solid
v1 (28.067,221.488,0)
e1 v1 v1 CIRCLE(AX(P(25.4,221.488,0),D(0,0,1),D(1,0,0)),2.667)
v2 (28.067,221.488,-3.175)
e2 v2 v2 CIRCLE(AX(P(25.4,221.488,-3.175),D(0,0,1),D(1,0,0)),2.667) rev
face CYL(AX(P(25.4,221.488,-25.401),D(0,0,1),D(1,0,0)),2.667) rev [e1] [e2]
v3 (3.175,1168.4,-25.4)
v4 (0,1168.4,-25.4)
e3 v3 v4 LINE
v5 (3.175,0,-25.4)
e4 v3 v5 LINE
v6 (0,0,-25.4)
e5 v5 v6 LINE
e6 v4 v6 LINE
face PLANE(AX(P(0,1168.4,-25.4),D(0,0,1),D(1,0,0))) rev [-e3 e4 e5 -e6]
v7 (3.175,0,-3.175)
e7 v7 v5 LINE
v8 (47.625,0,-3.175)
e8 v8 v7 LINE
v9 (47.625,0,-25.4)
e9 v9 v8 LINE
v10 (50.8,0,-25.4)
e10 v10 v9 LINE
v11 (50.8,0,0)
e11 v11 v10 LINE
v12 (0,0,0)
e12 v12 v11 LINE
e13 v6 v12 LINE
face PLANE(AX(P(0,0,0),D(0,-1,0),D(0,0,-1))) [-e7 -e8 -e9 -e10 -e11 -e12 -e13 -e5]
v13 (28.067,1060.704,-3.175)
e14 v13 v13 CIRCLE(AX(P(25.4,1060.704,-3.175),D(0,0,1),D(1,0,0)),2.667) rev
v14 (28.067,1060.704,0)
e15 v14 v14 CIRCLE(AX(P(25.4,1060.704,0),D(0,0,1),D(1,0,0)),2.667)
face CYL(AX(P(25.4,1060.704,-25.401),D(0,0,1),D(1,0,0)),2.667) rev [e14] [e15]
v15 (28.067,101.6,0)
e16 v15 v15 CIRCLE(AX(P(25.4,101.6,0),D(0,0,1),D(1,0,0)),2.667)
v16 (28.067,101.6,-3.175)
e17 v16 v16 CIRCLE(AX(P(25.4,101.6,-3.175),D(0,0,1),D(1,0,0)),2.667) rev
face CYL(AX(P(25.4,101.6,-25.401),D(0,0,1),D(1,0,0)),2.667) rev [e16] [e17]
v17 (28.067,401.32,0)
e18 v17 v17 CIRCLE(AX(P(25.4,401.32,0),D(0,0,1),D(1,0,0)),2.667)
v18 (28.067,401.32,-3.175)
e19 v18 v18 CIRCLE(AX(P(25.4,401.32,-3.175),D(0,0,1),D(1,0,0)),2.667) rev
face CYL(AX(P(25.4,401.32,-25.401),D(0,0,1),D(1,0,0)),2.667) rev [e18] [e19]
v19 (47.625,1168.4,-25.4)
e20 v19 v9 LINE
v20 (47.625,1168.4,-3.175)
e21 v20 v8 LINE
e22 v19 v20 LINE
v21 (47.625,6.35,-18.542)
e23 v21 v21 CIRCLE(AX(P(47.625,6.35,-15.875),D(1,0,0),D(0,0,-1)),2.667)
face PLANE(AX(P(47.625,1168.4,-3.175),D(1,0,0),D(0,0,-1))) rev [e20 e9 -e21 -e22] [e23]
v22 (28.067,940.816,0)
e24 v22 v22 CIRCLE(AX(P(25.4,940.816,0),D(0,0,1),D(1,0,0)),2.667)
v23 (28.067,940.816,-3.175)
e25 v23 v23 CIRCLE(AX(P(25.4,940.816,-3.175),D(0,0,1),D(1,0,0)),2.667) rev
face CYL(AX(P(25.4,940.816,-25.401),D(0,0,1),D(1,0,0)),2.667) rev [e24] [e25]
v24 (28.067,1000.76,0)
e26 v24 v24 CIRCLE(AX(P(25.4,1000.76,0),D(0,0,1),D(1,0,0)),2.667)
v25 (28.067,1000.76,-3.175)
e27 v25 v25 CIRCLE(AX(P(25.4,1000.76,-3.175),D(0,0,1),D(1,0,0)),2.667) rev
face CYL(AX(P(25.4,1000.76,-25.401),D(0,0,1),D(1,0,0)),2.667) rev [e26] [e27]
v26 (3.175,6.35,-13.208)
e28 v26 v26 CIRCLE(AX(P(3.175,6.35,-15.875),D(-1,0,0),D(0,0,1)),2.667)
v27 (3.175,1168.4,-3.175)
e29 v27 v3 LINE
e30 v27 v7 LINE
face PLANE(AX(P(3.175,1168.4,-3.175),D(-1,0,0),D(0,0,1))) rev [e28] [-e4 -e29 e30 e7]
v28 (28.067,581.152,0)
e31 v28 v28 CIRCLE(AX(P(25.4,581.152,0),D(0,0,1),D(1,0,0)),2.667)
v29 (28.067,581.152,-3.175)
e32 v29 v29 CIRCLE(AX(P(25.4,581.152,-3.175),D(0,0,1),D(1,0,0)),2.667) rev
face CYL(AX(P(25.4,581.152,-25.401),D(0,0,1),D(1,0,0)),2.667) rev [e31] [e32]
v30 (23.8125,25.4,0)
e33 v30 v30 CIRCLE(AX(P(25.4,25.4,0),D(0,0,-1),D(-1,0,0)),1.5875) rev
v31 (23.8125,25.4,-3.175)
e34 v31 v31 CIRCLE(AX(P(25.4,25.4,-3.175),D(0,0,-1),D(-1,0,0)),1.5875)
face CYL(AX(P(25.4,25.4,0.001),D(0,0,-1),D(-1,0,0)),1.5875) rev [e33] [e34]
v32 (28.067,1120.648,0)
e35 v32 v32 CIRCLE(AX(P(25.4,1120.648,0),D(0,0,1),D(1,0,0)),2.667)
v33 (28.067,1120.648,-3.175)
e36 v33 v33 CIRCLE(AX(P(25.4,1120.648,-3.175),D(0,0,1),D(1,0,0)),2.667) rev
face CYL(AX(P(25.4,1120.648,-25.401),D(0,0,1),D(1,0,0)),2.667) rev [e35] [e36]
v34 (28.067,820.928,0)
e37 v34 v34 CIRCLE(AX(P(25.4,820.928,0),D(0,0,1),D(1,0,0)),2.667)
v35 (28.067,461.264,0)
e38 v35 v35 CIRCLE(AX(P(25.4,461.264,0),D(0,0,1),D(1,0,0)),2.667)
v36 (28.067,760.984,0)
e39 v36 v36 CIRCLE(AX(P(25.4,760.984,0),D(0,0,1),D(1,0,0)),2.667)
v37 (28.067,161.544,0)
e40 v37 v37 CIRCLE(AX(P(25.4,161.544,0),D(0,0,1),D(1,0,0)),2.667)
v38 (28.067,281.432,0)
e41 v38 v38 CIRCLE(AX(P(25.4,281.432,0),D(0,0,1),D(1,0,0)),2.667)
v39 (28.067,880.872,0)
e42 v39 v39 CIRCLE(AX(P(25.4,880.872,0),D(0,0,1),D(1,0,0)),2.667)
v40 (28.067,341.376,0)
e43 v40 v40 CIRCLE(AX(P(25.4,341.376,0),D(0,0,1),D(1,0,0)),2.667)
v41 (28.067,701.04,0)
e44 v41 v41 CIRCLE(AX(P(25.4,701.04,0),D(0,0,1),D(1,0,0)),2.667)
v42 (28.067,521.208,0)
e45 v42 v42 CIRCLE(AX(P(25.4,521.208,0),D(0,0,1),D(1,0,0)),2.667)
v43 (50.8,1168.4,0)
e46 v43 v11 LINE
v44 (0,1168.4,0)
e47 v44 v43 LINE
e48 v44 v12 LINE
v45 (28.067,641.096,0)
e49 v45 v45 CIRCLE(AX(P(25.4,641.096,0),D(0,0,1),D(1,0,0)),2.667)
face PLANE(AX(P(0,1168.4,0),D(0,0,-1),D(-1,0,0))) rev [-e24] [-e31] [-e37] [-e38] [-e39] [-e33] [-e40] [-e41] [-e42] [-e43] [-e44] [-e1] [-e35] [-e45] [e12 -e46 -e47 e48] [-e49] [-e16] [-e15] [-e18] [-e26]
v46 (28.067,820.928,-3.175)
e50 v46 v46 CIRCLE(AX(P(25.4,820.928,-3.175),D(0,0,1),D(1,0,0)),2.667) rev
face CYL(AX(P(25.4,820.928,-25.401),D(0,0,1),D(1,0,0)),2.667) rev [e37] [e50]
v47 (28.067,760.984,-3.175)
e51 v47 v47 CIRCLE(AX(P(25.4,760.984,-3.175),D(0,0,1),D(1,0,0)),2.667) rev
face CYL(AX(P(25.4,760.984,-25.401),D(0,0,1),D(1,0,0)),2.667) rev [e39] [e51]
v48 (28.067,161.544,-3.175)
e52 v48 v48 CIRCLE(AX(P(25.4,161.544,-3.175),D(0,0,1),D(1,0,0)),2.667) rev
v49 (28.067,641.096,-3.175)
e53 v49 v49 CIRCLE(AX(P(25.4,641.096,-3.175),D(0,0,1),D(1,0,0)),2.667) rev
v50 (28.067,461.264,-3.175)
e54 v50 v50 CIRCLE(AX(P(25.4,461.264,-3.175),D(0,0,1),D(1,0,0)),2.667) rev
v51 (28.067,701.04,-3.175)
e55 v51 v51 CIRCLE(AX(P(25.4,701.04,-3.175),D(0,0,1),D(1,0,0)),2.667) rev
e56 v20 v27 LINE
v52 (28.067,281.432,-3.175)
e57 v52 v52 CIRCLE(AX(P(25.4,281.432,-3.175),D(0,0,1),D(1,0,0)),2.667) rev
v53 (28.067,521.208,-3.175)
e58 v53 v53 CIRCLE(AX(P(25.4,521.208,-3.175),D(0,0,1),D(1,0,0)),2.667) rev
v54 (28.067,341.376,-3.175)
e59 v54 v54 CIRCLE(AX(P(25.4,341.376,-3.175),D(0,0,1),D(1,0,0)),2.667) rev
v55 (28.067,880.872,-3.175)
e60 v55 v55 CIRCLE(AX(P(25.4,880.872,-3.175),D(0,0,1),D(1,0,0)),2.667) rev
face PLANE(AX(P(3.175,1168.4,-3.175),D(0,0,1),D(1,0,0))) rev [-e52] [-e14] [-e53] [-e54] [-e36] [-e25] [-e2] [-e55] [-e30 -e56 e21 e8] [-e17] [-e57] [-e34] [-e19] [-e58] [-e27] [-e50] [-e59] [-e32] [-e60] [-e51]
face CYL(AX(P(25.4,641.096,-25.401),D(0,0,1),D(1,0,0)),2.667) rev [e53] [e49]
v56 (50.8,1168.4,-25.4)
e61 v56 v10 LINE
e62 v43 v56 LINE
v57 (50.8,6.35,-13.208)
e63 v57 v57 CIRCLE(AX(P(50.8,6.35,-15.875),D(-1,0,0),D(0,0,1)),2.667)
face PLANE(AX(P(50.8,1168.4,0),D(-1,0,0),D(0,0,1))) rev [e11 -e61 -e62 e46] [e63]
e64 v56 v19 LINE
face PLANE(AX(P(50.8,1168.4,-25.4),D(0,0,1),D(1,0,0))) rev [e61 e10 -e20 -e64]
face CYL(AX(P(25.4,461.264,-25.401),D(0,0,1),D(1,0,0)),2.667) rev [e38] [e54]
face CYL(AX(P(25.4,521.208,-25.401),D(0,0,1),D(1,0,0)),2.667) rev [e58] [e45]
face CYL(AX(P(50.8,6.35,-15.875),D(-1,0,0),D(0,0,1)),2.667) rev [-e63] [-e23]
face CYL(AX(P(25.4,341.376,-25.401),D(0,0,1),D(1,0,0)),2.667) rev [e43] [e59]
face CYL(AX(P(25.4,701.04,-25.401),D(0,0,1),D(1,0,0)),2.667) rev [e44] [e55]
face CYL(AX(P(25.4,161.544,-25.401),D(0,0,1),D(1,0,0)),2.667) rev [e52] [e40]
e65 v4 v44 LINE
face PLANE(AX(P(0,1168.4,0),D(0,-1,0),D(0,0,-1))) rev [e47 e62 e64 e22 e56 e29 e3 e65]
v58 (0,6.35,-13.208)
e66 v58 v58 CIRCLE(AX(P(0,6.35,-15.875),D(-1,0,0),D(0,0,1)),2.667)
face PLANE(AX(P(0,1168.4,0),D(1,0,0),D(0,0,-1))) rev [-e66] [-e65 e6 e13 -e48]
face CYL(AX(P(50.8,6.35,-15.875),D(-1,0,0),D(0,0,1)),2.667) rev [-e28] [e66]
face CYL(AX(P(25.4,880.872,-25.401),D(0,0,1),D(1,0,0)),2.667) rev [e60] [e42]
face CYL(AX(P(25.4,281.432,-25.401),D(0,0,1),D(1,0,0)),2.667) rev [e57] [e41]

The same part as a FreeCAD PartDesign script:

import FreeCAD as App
import Part
import Sketcher

V = App.Vector
Q = App.Units.Quantity


def add_polygon(sketch, points):
    """Adds a closed chain of lines whose ends are joined by coincident constraints."""
    first, n = sketch.GeometryCount, len(points)
    for a, b in zip(points, points[1:] + points[:1]):
        sketch.addGeometry(Part.LineSegment(App.Vector(*a, 0), App.Vector(*b, 0)), False)
    for i in range(n):
        sketch.addConstraint(Sketcher.Constraint("Coincident", first + i, 2, first + (i + 1) % n, 1))

doc = App.newDocument("Part")
body = doc.addObject("PartDesign::Body", "Body")

# Sketch on XZ plane
sketch1 = doc.addObject("Sketcher::SketchObject", "Sketch")
body.addObject(sketch1)
sketch1.AttachmentSupport = (doc.XZ_Plane, [""])
sketch1.MapMode = "FlatFace"
add_polygon(sketch1, [(3.175, -3.175), (3.175, -25.4), (0, -25.4), (0, 0), (50.8, 0), (50.8, -25.4), (47.625, -25.4), (47.625, -3.175)])  # lines 0-7
sketch1.addConstraint([
    Sketcher.Constraint("Vertical", 0),
    Sketcher.Constraint("Horizontal", 1),
    Sketcher.Constraint("Vertical", 2),
    Sketcher.Constraint("Horizontal", 3),
    Sketcher.Constraint("Vertical", 4),
    Sketcher.Constraint("Horizontal", 5),
    Sketcher.Constraint("Vertical", 6),
    Sketcher.Constraint("Horizontal", 7),
    Sketcher.Constraint("Coincident", 2, 2, -1, 1),
    Sketcher.Constraint("Horizontal", 1, 2, 4, 2),
    Sketcher.Constraint("Equal", 1, 5),
    Sketcher.Constraint("DistanceX", 3, 1, 3, 2, Q("2 in")),
    Sketcher.Constraint("DistanceY", 2, 1, 2, 2, Q("1 in")),
    Sketcher.Constraint("DistanceX", 7, 2, 7, 1, Q("1.75 in")),
    Sketcher.Constraint("DistanceY", 0, 2, 0, 1, Q("0.875 in")),
])
pad1 = doc.addObject("PartDesign::Pad", "Pad")
body.addObject(pad1)
pad1.Profile = sketch1
pad1.Length = Q("46 in")
pad1.Reversed = True

# Sketch on XY plane
sketch2 = doc.addObject("Sketcher::SketchObject", "Sketch001")
body.addObject(sketch2)
sketch2.AttachmentSupport = (doc.XY_Plane, [""])
sketch2.MapMode = "FlatFace"
sketch2.addGeometry(Part.Circle(V(25.4, 101.6, 0), V(0, 0, 1), 2.667), False)
sketch2.addConstraint([
    Sketcher.Constraint("Diameter", 0, Q("0.21 in")),
    Sketcher.Constraint("DistanceX", -1, 1, 0, 3, Q("1 in")),
    Sketcher.Constraint("DistanceY", -1, 1, 0, 3, Q("4 in")),
])
pocket1 = doc.addObject("PartDesign::Pocket", "Pocket")
body.addObject(pocket1)
pocket1.Profile = sketch2
pocket1.Type = "UpToFirst"

# Sketch on XY plane
sketch3 = doc.addObject("Sketcher::SketchObject", "Sketch002")
body.addObject(sketch3)
sketch3.AttachmentSupport = (doc.XY_Plane, [""])
sketch3.MapMode = "FlatFace"
sketch3.addGeometry(Part.Circle(V(25.4, 161.544, 0), V(0, 0, 1), 2.667), False)
sketch3.addConstraint([
    Sketcher.Constraint("Diameter", 0, Q("0.21 in")),
    Sketcher.Constraint("DistanceX", -1, 1, 0, 3, Q("1 in")),
    Sketcher.Constraint("DistanceY", -1, 1, 0, 3, Q("6.36 in")),
])
pocket2 = doc.addObject("PartDesign::Pocket", "Pocket001")
body.addObject(pocket2)
pocket2.Profile = sketch3
pocket2.Type = "UpToFirst"

# Sketch on XY plane
sketch4 = doc.addObject("Sketcher::SketchObject", "Sketch003")
body.addObject(sketch4)
sketch4.AttachmentSupport = (doc.XY_Plane, [""])
sketch4.MapMode = "FlatFace"
sketch4.addGeometry(Part.Circle(V(25.4, 221.488, 0), V(0, 0, 1), 2.667), False)
sketch4.addConstraint([
    Sketcher.Constraint("Diameter", 0, Q("0.21 in")),
    Sketcher.Constraint("DistanceX", -1, 1, 0, 3, Q("1 in")),
    Sketcher.Constraint("DistanceY", -1, 1, 0, 3, Q("8.72 in")),
])
pocket3 = doc.addObject("PartDesign::Pocket", "Pocket002")
body.addObject(pocket3)
pocket3.Profile = sketch4
pocket3.Type = "UpToFirst"

# Sketch on XY plane
sketch5 = doc.addObject("Sketcher::SketchObject", "Sketch004")
body.addObject(sketch5)
sketch5.AttachmentSupport = (doc.XY_Plane, [""])
sketch5.MapMode = "FlatFace"
sketch5.addGeometry(Part.Circle(V(25.4, 281.432, 0), V(0, 0, 1), 2.667), False)
sketch5.addConstraint([
    Sketcher.Constraint("Diameter", 0, Q("0.21 in")),
    Sketcher.Constraint("DistanceX", -1, 1, 0, 3, Q("1 in")),
    Sketcher.Constraint("DistanceY", -1, 1, 0, 3, Q("11.08 in")),
])
pocket4 = doc.addObject("PartDesign::Pocket", "Pocket003")
body.addObject(pocket4)
pocket4.Profile = sketch5
pocket4.Type = "UpToFirst"

# Sketch on XY plane
sketch6 = doc.addObject("Sketcher::SketchObject", "Sketch005")
body.addObject(sketch6)
sketch6.AttachmentSupport = (doc.XY_Plane, [""])
sketch6.MapMode = "FlatFace"
sketch6.addGeometry(Part.Circle(V(25.4, 341.376, 0), V(0, 0, 1), 2.667), False)
sketch6.addConstraint([
    Sketcher.Constraint("Diameter", 0, Q("0.21 in")),
    Sketcher.Constraint("DistanceX", -1, 1, 0, 3, Q("1 in")),
    Sketcher.Constraint("DistanceY", -1, 1, 0, 3, Q("13.44 in")),
])
pocket5 = doc.addObject("PartDesign::Pocket", "Pocket004")
body.addObject(pocket5)
pocket5.Profile = sketch6
pocket5.Type = "UpToFirst"

# Sketch on XY plane
sketch7 = doc.addObject("Sketcher::SketchObject", "Sketch006")
body.addObject(sketch7)
sketch7.AttachmentSupport = (doc.XY_Plane, [""])
sketch7.MapMode = "FlatFace"
sketch7.addGeometry(Part.Circle(V(25.4, 401.32, 0), V(0, 0, 1), 2.667), False)
sketch7.addConstraint([
    Sketcher.Constraint("Diameter", 0, Q("0.21 in")),
    Sketcher.Constraint("DistanceX", -1, 1, 0, 3, Q("1 in")),
    Sketcher.Constraint("DistanceY", -1, 1, 0, 3, Q("15.8 in")),
])
pocket6 = doc.addObject("PartDesign::Pocket", "Pocket005")
body.addObject(pocket6)
pocket6.Profile = sketch7
pocket6.Type = "UpToFirst"

# Sketch on XY plane
sketch8 = doc.addObject("Sketcher::SketchObject", "Sketch007")
body.addObject(sketch8)
sketch8.AttachmentSupport = (doc.XY_Plane, [""])
sketch8.MapMode = "FlatFace"
sketch8.addGeometry(Part.Circle(V(25.4, 461.264, 0), V(0, 0, 1), 2.667), False)
sketch8.addConstraint([
    Sketcher.Constraint("Diameter", 0, Q("0.21 in")),
    Sketcher.Constraint("DistanceX", -1, 1, 0, 3, Q("1 in")),
    Sketcher.Constraint("DistanceY", -1, 1, 0, 3, Q("18.16 in")),
])
pocket7 = doc.addObject("PartDesign::Pocket", "Pocket006")
body.addObject(pocket7)
pocket7.Profile = sketch8
pocket7.Type = "UpToFirst"

# Sketch on XY plane
sketch9 = doc.addObject("Sketcher::SketchObject", "Sketch008")
body.addObject(sketch9)
sketch9.AttachmentSupport = (doc.XY_Plane, [""])
sketch9.MapMode = "FlatFace"
sketch9.addGeometry(Part.Circle(V(25.4, 521.208, 0), V(0, 0, 1), 2.667), False)
sketch9.addConstraint([
    Sketcher.Constraint("Diameter", 0, Q("0.21 in")),
    Sketcher.Constraint("DistanceX", -1, 1, 0, 3, Q("1 in")),
    Sketcher.Constraint("DistanceY", -1, 1, 0, 3, Q("20.52 in")),
])
pocket8 = doc.addObject("PartDesign::Pocket", "Pocket007")
body.addObject(pocket8)
pocket8.Profile = sketch9
pocket8.Type = "UpToFirst"

# Sketch on XY plane
sketch10 = doc.addObject("Sketcher::SketchObject", "Sketch009")
body.addObject(sketch10)
sketch10.AttachmentSupport = (doc.XY_Plane, [""])
sketch10.MapMode = "FlatFace"
sketch10.addGeometry(Part.Circle(V(25.4, 581.152, 0), V(0, 0, 1), 2.667), False)
sketch10.addConstraint([
    Sketcher.Constraint("Diameter", 0, Q("0.21 in")),
    Sketcher.Constraint("DistanceX", -1, 1, 0, 3, Q("1 in")),
    Sketcher.Constraint("DistanceY", -1, 1, 0, 3, Q("22.88 in")),
])
pocket9 = doc.addObject("PartDesign::Pocket", "Pocket008")
body.addObject(pocket9)
pocket9.Profile = sketch10
pocket9.Type = "UpToFirst"

# Sketch on XY plane
sketch11 = doc.addObject("Sketcher::SketchObject", "Sketch010")
body.addObject(sketch11)
sketch11.AttachmentSupport = (doc.XY_Plane, [""])
sketch11.MapMode = "FlatFace"
sketch11.addGeometry(Part.Circle(V(25.4, 641.096, 0), V(0, 0, 1), 2.667), False)
sketch11.addConstraint([
    Sketcher.Constraint("Diameter", 0, Q("0.21 in")),
    Sketcher.Constraint("DistanceX", -1, 1, 0, 3, Q("1 in")),
    Sketcher.Constraint("DistanceY", -1, 1, 0, 3, Q("25.24 in")),
])
pocket10 = doc.addObject("PartDesign::Pocket", "Pocket009")
body.addObject(pocket10)
pocket10.Profile = sketch11
pocket10.Type = "UpToFirst"

# Sketch on XY plane
sketch12 = doc.addObject("Sketcher::SketchObject", "Sketch011")
body.addObject(sketch12)
sketch12.AttachmentSupport = (doc.XY_Plane, [""])
sketch12.MapMode = "FlatFace"
sketch12.addGeometry(Part.Circle(V(25.4, 701.04, 0), V(0, 0, 1), 2.667), False)
sketch12.addConstraint([
    Sketcher.Constraint("Diameter", 0, Q("0.21 in")),
    Sketcher.Constraint("DistanceX", -1, 1, 0, 3, Q("1 in")),
    Sketcher.Constraint("DistanceY", -1, 1, 0, 3, Q("27.6 in")),
])
pocket11 = doc.addObject("PartDesign::Pocket", "Pocket010")
body.addObject(pocket11)
pocket11.Profile = sketch12
pocket11.Type = "UpToFirst"

# Sketch on XY plane
sketch13 = doc.addObject("Sketcher::SketchObject", "Sketch012")
body.addObject(sketch13)
sketch13.AttachmentSupport = (doc.XY_Plane, [""])
sketch13.MapMode = "FlatFace"
sketch13.addGeometry(Part.Circle(V(25.4, 760.984, 0), V(0, 0, 1), 2.667), False)
sketch13.addConstraint([
    Sketcher.Constraint("Diameter", 0, Q("0.21 in")),
    Sketcher.Constraint("DistanceX", -1, 1, 0, 3, Q("1 in")),
    Sketcher.Constraint("DistanceY", -1, 1, 0, 3, Q("29.96 in")),
])
pocket12 = doc.addObject("PartDesign::Pocket", "Pocket011")
body.addObject(pocket12)
pocket12.Profile = sketch13
pocket12.Type = "UpToFirst"

# Sketch on XY plane
sketch14 = doc.addObject("Sketcher::SketchObject", "Sketch013")
body.addObject(sketch14)
sketch14.AttachmentSupport = (doc.XY_Plane, [""])
sketch14.MapMode = "FlatFace"
sketch14.addGeometry(Part.Circle(V(25.4, 820.928, 0), V(0, 0, 1), 2.667), False)
sketch14.addConstraint([
    Sketcher.Constraint("Diameter", 0, Q("0.21 in")),
    Sketcher.Constraint("DistanceX", -1, 1, 0, 3, Q("1 in")),
    Sketcher.Constraint("DistanceY", -1, 1, 0, 3, Q("32.32 in")),
])
pocket13 = doc.addObject("PartDesign::Pocket", "Pocket012")
body.addObject(pocket13)
pocket13.Profile = sketch14
pocket13.Type = "UpToFirst"

# Sketch on XY plane
sketch15 = doc.addObject("Sketcher::SketchObject", "Sketch014")
body.addObject(sketch15)
sketch15.AttachmentSupport = (doc.XY_Plane, [""])
sketch15.MapMode = "FlatFace"
sketch15.addGeometry(Part.Circle(V(25.4, 880.872, 0), V(0, 0, 1), 2.667), False)
sketch15.addConstraint([
    Sketcher.Constraint("Diameter", 0, Q("0.21 in")),
    Sketcher.Constraint("DistanceX", -1, 1, 0, 3, Q("1 in")),
    Sketcher.Constraint("DistanceY", -1, 1, 0, 3, Q("34.68 in")),
])
pocket14 = doc.addObject("PartDesign::Pocket", "Pocket013")
body.addObject(pocket14)
pocket14.Profile = sketch15
pocket14.Type = "UpToFirst"

# Sketch on XY plane
sketch16 = doc.addObject("Sketcher::SketchObject", "Sketch015")
body.addObject(sketch16)
sketch16.AttachmentSupport = (doc.XY_Plane, [""])
sketch16.MapMode = "FlatFace"
sketch16.addGeometry(Part.Circle(V(25.4, 940.816, 0), V(0, 0, 1), 2.667), False)
sketch16.addConstraint([
    Sketcher.Constraint("Diameter", 0, Q("0.21 in")),
    Sketcher.Constraint("DistanceX", -1, 1, 0, 3, Q("1 in")),
    Sketcher.Constraint("DistanceY", -1, 1, 0, 3, Q("37.04 in")),
])
pocket15 = doc.addObject("PartDesign::Pocket", "Pocket014")
body.addObject(pocket15)
pocket15.Profile = sketch16
pocket15.Type = "UpToFirst"

# Sketch on XY plane
sketch17 = doc.addObject("Sketcher::SketchObject", "Sketch016")
body.addObject(sketch17)
sketch17.AttachmentSupport = (doc.XY_Plane, [""])
sketch17.MapMode = "FlatFace"
sketch17.addGeometry(Part.Circle(V(25.4, 1000.76, 0), V(0, 0, 1), 2.667), False)
sketch17.addConstraint([
    Sketcher.Constraint("Diameter", 0, Q("0.21 in")),
    Sketcher.Constraint("DistanceX", -1, 1, 0, 3, Q("1 in")),
    Sketcher.Constraint("DistanceY", -1, 1, 0, 3, Q("39.4 in")),
])
pocket16 = doc.addObject("PartDesign::Pocket", "Pocket015")
body.addObject(pocket16)
pocket16.Profile = sketch17
pocket16.Type = "UpToFirst"

# Sketch on XY plane
sketch18 = doc.addObject("Sketcher::SketchObject", "Sketch017")
body.addObject(sketch18)
sketch18.AttachmentSupport = (doc.XY_Plane, [""])
sketch18.MapMode = "FlatFace"
sketch18.addGeometry(Part.Circle(V(25.4, 1060.704, 0), V(0, 0, 1), 2.667), False)
sketch18.addConstraint([
    Sketcher.Constraint("Diameter", 0, Q("0.21 in")),
    Sketcher.Constraint("DistanceX", -1, 1, 0, 3, Q("1 in")),
    Sketcher.Constraint("DistanceY", -1, 1, 0, 3, Q("41.76 in")),
])
pocket17 = doc.addObject("PartDesign::Pocket", "Pocket016")
body.addObject(pocket17)
pocket17.Profile = sketch18
pocket17.Type = "UpToFirst"

# Sketch on XY plane
sketch19 = doc.addObject("Sketcher::SketchObject", "Sketch018")
body.addObject(sketch19)
sketch19.AttachmentSupport = (doc.XY_Plane, [""])
sketch19.MapMode = "FlatFace"
sketch19.addGeometry(Part.Circle(V(25.4, 1120.648, 0), V(0, 0, 1), 2.667), False)
sketch19.addConstraint([
    Sketcher.Constraint("Diameter", 0, Q("0.21 in")),
    Sketcher.Constraint("DistanceX", -1, 1, 0, 3, Q("1 in")),
    Sketcher.Constraint("DistanceY", -1, 1, 0, 3, Q("44.12 in")),
])
pocket18 = doc.addObject("PartDesign::Pocket", "Pocket017")
body.addObject(pocket18)
pocket18.Profile = sketch19
pocket18.Type = "UpToFirst"

# Sketch on XY plane
sketch20 = doc.addObject("Sketcher::SketchObject", "Sketch019")
body.addObject(sketch20)
sketch20.AttachmentSupport = (doc.XY_Plane, [""])
sketch20.MapMode = "FlatFace"
sketch20.AttachmentOffset = App.Placement(V(0, 0, -0.125 * 25.4), App.Rotation())
sketch20.addGeometry(Part.Circle(V(25.4, 25.4, 0), V(0, 0, 1), 1.5875), False)
sketch20.addConstraint([
    Sketcher.Constraint("Diameter", 0, Q("0.125 in")),
    Sketcher.Constraint("DistanceX", -1, 1, 0, 3, Q("1 in")),
    Sketcher.Constraint("DistanceY", -1, 1, 0, 3, Q("1 in")),
])
pocket19 = doc.addObject("PartDesign::Pocket", "Pocket018")
body.addObject(pocket19)
pocket19.Profile = sketch20
pocket19.Type = "UpToFirst"
pocket19.Reversed = True

# Sketch on YZ plane
sketch21 = doc.addObject("Sketcher::SketchObject", "Sketch020")
body.addObject(sketch21)
sketch21.AttachmentSupport = (doc.YZ_Plane, [""])
sketch21.MapMode = "FlatFace"
sketch21.addGeometry(Part.Circle(V(6.35, -15.875, 0), V(0, 0, 1), 2.667), False)
sketch21.addConstraint([
    Sketcher.Constraint("Diameter", 0, Q("0.21 in")),
    Sketcher.Constraint("DistanceX", -1, 1, 0, 3, Q("0.25 in")),
    Sketcher.Constraint("DistanceY", 0, 3, -1, 1, Q("0.625 in")),
])
pocket20 = doc.addObject("PartDesign::Pocket", "Pocket019")
body.addObject(pocket20)
pocket20.Profile = sketch21
pocket20.Type = "ThroughAll"
pocket20.Reversed = True

doc.recompute()
